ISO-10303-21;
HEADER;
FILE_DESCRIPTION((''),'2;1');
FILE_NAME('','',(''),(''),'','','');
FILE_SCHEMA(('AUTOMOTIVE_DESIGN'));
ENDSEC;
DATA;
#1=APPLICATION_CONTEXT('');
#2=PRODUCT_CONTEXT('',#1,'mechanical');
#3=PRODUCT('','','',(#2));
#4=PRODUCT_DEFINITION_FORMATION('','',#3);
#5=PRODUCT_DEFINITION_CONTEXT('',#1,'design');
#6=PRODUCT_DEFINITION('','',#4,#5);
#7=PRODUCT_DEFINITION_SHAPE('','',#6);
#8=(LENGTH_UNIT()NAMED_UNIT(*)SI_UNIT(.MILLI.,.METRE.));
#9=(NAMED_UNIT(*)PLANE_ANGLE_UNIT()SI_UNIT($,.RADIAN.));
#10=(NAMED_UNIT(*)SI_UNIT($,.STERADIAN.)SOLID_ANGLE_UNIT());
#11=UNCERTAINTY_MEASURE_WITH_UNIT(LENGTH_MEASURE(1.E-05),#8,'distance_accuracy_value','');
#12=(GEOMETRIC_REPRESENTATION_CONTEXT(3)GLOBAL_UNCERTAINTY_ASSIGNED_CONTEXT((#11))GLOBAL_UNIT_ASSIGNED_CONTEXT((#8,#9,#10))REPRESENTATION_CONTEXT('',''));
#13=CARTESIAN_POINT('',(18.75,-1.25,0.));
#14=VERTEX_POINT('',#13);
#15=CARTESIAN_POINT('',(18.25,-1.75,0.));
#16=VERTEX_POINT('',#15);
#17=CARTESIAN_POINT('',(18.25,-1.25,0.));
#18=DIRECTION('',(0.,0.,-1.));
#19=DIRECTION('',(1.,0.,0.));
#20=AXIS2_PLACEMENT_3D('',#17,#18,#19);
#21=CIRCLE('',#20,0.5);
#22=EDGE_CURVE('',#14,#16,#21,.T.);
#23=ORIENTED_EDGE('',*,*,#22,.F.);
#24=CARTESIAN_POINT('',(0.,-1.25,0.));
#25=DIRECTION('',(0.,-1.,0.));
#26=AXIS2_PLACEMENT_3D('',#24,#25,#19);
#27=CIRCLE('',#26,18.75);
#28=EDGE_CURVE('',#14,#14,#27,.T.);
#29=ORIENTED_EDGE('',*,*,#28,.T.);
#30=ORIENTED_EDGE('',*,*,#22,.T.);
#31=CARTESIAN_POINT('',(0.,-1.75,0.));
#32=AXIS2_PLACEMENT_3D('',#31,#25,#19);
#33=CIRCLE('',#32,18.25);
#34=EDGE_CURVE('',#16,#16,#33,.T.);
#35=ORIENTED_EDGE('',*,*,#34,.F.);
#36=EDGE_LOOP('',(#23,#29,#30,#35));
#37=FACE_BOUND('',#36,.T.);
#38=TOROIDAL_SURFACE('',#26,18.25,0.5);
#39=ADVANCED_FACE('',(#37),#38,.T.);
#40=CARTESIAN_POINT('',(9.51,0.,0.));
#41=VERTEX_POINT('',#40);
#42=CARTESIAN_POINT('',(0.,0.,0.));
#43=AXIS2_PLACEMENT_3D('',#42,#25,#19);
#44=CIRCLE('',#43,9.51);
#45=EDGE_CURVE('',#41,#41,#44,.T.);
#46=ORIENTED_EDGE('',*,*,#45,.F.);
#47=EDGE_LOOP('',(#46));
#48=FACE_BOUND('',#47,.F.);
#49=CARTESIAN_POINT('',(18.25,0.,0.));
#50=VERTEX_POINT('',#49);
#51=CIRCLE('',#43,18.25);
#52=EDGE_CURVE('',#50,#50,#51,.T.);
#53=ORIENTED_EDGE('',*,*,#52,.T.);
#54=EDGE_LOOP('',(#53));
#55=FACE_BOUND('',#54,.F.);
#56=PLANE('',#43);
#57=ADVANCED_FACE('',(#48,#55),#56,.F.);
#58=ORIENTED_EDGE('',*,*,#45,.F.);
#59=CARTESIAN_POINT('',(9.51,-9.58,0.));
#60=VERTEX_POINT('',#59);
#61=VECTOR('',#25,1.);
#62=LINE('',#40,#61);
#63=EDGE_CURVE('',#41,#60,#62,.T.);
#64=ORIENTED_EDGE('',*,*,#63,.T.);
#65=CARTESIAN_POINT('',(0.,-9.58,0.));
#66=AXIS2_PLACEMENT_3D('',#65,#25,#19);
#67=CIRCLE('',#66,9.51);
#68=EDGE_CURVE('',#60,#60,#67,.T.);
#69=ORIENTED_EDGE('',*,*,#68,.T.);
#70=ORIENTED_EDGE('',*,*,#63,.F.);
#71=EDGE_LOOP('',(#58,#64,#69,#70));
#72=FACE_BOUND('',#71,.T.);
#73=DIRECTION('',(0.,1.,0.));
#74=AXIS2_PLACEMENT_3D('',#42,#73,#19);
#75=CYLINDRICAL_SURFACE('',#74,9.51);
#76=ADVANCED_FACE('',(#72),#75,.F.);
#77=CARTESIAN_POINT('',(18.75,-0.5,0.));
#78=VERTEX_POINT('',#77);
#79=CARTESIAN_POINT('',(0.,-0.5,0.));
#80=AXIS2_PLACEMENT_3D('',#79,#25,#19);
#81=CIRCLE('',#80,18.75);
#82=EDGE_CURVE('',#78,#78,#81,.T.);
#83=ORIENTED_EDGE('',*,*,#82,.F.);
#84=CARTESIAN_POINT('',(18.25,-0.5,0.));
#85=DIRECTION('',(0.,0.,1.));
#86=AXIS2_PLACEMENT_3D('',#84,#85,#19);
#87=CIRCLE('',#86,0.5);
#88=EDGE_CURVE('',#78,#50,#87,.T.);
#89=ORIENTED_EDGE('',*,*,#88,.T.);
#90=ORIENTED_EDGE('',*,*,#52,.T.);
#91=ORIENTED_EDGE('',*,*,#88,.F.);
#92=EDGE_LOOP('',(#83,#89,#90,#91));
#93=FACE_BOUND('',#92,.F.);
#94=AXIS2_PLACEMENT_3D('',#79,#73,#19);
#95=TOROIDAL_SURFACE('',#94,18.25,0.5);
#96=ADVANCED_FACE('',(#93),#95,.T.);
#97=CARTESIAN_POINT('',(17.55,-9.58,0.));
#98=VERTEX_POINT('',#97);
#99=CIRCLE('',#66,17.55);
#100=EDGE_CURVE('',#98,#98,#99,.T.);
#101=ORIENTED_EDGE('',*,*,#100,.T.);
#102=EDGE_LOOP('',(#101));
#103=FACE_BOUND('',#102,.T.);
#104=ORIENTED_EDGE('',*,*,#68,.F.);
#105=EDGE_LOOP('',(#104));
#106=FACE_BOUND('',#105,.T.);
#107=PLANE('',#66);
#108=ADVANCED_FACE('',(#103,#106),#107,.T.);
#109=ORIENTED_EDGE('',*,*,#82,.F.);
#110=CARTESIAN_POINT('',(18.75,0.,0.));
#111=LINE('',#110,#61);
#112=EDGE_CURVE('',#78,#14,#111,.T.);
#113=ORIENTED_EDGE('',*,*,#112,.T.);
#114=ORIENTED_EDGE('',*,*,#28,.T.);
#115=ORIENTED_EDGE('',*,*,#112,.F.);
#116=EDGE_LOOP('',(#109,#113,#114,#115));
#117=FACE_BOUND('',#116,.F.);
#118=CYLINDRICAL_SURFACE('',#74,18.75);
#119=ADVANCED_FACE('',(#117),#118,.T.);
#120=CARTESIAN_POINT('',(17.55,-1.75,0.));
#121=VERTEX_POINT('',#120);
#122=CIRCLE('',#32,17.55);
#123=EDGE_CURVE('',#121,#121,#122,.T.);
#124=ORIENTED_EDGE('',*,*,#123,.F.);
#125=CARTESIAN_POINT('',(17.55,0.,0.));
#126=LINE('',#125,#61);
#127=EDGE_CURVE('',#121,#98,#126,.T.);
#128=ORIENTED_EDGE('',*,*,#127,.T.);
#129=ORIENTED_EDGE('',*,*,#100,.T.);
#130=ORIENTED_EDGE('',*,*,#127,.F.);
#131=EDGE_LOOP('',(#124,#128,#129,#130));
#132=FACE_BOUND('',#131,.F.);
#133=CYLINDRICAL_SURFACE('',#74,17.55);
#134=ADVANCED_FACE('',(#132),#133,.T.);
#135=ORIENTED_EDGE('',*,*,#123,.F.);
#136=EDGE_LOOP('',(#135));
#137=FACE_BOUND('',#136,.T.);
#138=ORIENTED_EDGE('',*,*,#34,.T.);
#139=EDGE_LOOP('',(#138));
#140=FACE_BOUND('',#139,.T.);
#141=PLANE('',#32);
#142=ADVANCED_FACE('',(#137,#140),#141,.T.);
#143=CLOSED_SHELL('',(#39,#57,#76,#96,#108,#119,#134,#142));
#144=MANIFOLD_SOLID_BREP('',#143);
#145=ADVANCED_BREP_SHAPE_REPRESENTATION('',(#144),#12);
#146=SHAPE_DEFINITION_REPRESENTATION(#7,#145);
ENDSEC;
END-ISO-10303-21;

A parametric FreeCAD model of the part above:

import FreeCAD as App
import Part
import Sketcher


def edges_at(feature, points):
    """Names of the edges that pass closest to the given points."""
    edges = feature.Shape.Edges
    near = lambda p: min(range(len(edges)), key=lambda i: edges[i].distToShape(Part.Vertex(*p))[0])
    return sorted({f"Edge{near(p) + 1}" for p in points})

doc = App.newDocument("Part")
body = doc.addObject("PartDesign::Body", "Body")

# Sketch on XZ plane
sketch1 = doc.addObject("Sketcher::SketchObject", "Sketch")
body.addObject(sketch1)
sketch1.AttachmentSupport = (doc.XZ_Plane, [""])
sketch1.MapMode = "FlatFace"
sketch1.addGeometry(Part.Circle(App.Vector(0, 0, 0), App.Vector(0, 0, 1), 18), False)
sketch1.addGeometry(Part.Circle(App.Vector(0, 0, 0), App.Vector(0, 0, 1), 10), False)
sketch1.addConstraint(Sketcher.Constraint("Coincident", 0, 3, -1, 1))
sketch1.addConstraint(Sketcher.Constraint("Coincident", 1, 3, -1, 1))
sketch1.addConstraint(Sketcher.Constraint("Diameter", 0, 35.1))
sketch1.addConstraint(Sketcher.Constraint("Diameter", 1, 19.02))
pad1 = doc.addObject("PartDesign::Pad", "Pad")
body.addObject(pad1)
pad1.Profile = sketch1
pad1.Length = 9.58

# Sketch on XZ plane
sketch2 = doc.addObject("Sketcher::SketchObject", "Sketch001")
body.addObject(sketch2)
sketch2.AttachmentSupport = (doc.XZ_Plane, [""])
sketch2.MapMode = "FlatFace"
sketch2.addGeometry(Part.Circle(App.Vector(0, 0, 0), App.Vector(0, 0, 1), 19), False)
sketch2.addGeometry(Part.Circle(App.Vector(0, 0, 0), App.Vector(0, 0, 1), 18), False)
sketch2.addConstraint(Sketcher.Constraint("Coincident", 0, 3, -1, 1))
sketch2.addConstraint(Sketcher.Constraint("Coincident", 1, 3, -1, 1))
sketch2.addConstraint(Sketcher.Constraint("Diameter", 0, 37.5))
sketch2.addConstraint(Sketcher.Constraint("Diameter", 1, 35.1))
pad2 = doc.addObject("PartDesign::Pad", "Pad001")
body.addObject(pad2)
pad2.Profile = sketch2
pad2.Length = 1.75
doc.recompute()

fillet = doc.addObject("PartDesign::Fillet", "Fillet")
body.addObject(fillet)
fillet.Base = (pad2, edges_at(pad2, [(-18.75, -1.75, 0), (-18.75, 0, 0)]))
fillet.Radius = 0.5

doc.recompute()
